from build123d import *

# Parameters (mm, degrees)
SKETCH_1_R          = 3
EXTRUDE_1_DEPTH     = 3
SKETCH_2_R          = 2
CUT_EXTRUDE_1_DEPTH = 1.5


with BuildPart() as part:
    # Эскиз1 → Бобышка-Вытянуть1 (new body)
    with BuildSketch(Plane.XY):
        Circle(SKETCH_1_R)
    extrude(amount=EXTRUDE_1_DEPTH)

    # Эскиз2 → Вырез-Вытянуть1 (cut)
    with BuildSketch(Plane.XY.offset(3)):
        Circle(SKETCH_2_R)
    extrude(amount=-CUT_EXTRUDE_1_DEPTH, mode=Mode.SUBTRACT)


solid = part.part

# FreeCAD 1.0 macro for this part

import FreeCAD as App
import Part
import Sketcher
from FreeCAD import Vector

doc = App.newDocument("Part")
body = doc.addObject("PartDesign::Body", "Body")

# Sketch on XY plane
sketch1 = body.newObject("Sketcher::SketchObject", "Sketch")
sketch1.AttachmentSupport = (doc.getObject("XY_Plane"), [""])
sketch1.MapMode = "FlatFace"
sketch1.addGeometry(Part.Circle(Vector(0, 0, 0), Vector(0, 0, 1), 3), False)
sketch1.addConstraint([
    Sketcher.Constraint("Coincident", 0, 3, -1, 1),
    Sketcher.Constraint("Diameter", 0, 6.0),
])
pad1 = body.newObject("PartDesign::Pad", "Pad")
pad1.Profile = sketch1
pad1.Length = 3

# Sketch on XY plane
sketch2 = body.newObject("Sketcher::SketchObject", "Sketch001")
sketch2.AttachmentSupport = (doc.getObject("XY_Plane"), [""])
sketch2.MapMode = "FlatFace"
sketch2.AttachmentOffset = App.Placement(Vector(0, 0, 3), App.Rotation())
sketch2.addGeometry(Part.Circle(Vector(0, 0, 0), Vector(0, 0, 1), 2), False)
sketch2.addConstraint([
    Sketcher.Constraint("Coincident", 0, 3, -1, 1),
    Sketcher.Constraint("Diameter", 0, 4.0),
])
pocket1 = body.newObject("PartDesign::Pocket", "Pocket")
pocket1.Profile = sketch2
pocket1.Length = 1.5

doc.recompute()
